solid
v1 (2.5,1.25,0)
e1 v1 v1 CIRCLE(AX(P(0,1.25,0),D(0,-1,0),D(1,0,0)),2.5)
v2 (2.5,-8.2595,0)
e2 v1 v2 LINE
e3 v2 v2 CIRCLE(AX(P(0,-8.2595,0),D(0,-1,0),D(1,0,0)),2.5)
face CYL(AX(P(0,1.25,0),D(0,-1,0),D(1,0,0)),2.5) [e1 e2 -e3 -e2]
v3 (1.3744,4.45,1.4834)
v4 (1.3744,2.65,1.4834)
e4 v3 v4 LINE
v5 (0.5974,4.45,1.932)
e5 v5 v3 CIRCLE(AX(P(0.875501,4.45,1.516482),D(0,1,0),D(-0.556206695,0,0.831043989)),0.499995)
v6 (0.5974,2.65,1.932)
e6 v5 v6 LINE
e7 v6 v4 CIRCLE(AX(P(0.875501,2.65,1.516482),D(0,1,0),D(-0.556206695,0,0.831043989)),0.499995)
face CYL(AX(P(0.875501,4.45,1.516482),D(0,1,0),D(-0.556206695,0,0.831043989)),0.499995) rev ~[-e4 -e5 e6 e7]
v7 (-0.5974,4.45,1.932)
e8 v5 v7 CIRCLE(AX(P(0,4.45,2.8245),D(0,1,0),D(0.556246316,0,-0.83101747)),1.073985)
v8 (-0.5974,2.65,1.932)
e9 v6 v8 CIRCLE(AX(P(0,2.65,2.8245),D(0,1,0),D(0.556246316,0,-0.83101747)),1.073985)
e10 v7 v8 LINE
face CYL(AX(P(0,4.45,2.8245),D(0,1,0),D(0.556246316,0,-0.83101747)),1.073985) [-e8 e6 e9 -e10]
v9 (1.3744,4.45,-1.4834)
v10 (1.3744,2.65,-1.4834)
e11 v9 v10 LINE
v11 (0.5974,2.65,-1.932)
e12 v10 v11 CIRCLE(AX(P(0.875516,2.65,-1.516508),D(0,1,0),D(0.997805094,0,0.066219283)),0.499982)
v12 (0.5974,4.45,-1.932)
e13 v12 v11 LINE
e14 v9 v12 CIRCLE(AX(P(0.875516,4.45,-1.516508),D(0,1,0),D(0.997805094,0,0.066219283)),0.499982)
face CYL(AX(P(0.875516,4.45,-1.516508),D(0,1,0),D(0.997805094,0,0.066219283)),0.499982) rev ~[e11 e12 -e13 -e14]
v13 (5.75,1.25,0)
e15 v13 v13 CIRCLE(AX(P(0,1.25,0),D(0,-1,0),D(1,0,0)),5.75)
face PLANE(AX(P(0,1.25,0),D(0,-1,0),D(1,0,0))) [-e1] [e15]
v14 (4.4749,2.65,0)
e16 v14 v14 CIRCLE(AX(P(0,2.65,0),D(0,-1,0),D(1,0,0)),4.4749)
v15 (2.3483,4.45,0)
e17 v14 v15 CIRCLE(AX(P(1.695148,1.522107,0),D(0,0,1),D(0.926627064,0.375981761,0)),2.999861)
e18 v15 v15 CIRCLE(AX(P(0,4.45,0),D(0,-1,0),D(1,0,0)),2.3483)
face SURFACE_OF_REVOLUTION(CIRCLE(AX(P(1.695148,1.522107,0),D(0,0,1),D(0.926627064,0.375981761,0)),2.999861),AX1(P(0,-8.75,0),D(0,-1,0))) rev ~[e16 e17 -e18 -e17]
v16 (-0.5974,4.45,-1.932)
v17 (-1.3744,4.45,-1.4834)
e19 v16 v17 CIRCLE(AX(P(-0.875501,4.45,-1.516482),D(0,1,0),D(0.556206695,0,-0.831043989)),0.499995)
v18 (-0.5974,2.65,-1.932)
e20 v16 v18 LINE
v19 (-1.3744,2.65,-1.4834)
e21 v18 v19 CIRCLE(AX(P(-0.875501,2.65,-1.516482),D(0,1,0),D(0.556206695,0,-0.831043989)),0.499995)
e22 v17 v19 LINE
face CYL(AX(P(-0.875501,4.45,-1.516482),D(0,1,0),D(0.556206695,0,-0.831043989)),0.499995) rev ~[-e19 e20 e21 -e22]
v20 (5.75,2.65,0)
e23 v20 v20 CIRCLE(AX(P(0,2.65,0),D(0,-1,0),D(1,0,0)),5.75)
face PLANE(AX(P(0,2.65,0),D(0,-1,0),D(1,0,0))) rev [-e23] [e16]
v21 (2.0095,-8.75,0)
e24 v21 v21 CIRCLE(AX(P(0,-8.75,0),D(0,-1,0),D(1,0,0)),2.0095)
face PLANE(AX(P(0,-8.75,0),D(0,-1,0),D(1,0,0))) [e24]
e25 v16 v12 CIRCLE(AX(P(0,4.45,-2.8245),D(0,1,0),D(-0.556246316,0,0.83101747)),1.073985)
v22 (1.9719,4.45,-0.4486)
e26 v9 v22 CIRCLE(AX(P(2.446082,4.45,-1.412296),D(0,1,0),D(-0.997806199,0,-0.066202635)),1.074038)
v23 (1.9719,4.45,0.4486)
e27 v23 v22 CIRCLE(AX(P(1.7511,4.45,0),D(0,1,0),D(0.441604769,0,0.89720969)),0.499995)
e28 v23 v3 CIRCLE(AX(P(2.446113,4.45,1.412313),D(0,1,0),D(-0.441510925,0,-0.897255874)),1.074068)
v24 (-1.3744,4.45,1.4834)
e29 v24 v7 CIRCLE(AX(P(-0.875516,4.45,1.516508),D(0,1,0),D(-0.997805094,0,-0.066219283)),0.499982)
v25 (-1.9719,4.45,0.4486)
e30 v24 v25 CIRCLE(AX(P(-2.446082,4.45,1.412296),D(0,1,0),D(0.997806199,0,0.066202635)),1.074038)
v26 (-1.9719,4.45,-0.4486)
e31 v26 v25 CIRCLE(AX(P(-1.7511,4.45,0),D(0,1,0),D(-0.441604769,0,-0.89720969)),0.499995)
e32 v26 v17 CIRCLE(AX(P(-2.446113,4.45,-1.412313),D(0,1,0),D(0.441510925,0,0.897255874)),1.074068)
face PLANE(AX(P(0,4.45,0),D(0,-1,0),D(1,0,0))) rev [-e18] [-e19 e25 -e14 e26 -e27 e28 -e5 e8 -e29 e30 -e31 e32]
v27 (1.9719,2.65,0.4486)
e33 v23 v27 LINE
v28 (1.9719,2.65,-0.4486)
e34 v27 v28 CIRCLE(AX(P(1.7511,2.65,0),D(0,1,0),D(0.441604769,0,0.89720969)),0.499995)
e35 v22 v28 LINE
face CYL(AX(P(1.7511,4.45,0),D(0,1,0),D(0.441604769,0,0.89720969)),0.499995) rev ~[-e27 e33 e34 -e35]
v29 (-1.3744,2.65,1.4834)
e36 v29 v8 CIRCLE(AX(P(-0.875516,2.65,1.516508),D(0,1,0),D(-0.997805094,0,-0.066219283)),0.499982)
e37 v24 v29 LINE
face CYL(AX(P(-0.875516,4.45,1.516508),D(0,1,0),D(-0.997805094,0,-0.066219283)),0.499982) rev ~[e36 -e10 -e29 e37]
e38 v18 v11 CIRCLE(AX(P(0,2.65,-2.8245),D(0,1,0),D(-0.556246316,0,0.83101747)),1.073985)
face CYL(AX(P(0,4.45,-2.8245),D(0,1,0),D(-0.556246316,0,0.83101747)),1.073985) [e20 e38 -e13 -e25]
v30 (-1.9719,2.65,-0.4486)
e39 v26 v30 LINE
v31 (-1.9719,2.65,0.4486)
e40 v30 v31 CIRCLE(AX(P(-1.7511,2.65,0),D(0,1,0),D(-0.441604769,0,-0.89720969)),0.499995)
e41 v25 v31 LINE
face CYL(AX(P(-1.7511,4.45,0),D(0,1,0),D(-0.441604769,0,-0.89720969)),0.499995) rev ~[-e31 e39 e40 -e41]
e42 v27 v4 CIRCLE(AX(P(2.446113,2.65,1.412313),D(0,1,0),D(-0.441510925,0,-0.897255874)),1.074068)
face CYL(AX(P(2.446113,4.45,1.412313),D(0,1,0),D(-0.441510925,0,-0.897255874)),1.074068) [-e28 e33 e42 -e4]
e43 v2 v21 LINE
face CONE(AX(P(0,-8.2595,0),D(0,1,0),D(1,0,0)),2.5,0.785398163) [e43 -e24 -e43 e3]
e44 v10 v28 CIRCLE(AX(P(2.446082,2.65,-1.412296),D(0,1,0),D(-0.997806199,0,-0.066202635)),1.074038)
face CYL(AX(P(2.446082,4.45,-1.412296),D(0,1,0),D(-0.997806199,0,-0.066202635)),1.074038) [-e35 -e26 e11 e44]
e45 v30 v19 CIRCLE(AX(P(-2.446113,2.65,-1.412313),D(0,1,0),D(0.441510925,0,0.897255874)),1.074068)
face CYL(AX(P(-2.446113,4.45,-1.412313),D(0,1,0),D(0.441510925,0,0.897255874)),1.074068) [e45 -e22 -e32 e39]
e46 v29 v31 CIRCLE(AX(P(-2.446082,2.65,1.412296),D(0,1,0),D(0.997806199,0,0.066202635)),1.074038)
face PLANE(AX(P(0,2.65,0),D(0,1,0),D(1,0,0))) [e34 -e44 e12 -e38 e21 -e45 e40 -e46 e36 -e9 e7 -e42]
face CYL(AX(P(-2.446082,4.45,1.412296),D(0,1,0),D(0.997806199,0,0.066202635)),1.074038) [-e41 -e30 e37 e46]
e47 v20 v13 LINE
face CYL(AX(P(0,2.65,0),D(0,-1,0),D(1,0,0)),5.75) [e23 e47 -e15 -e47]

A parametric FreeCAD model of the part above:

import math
import FreeCAD as App
import Part
import Sketcher
from FreeCAD import Vector
Q = App.Units.Quantity

doc = App.newDocument("Part")
params = doc.addObject("Spreadsheet::Sheet", "Params")
for row, (alias, value) in enumerate([
    ("sketch1_radius", "3 mm"),
    ("sketch1_height", "13.2 mm"),
    ("sketch1_height2", "1.4 mm"),
    ("sketch1_width", "3.25 mm"),
    ("revolution_angle", "360 deg"),
    ("sketch2_radius", "0.5 mm"),
    ("pocket1_length", "1.8 mm"),
], start=1):
    params.set(f"A{row}", alias)
    params.set(f"B{row}", "=" + value)
    params.setAlias(f"B{row}", alias)

body = doc.addObject("PartDesign::Body", "Body")

# Sketch on XY plane
sketch1 = doc.addObject("Sketcher::SketchObject", "Sketch")
body.addObject(sketch1)
sketch1.AttachmentSupport = (doc.XY_Plane, [""])
sketch1.MapMode = "FlatFace"
sketch1.addGeometry(Part.LineSegment(Vector(0, 4.45, 0), Vector(0, -8.75, 0)), False)
sketch1.addGeometry(Part.LineSegment(Vector(0, -8.75, 0), Vector(2.0095, -8.75, 0)), False)
sketch1.addGeometry(Part.LineSegment(Vector(2.0095, -8.75, 0), Vector(2.5, -8.2595, 0)), False)
sketch1.addGeometry(Part.LineSegment(Vector(2.5, -8.2595, 0), Vector(2.5, 1.25, 0)), False)
sketch1.addGeometry(Part.LineSegment(Vector(2.5, 1.25, 0), Vector(5.75, 1.25, 0)), False)
sketch1.addGeometry(Part.LineSegment(Vector(5.75, 1.25, 0), Vector(5.75, 2.65, 0)), False)
sketch1.addGeometry(Part.LineSegment(Vector(5.75, 2.65, 0), Vector(4.4749, 2.65, 0)), False)
sketch1.addGeometry(Part.ArcOfCircle(Part.Circle(Vector(1.695, 1.522, 0), Vector(0, 0, 1), 3.000038), math.radians(22.085838), math.radians(77.422097)), False)
sketch1.addGeometry(Part.LineSegment(Vector(2.3483, 4.45, 0), Vector(0, 4.45, 0)), False)
sketch1.addConstraint(Sketcher.Constraint("Coincident", 0, 2, 1, 1))
sketch1.addConstraint(Sketcher.Constraint("Coincident", 1, 2, 2, 1))
sketch1.addConstraint(Sketcher.Constraint("Coincident", 2, 2, 3, 1))
sketch1.addConstraint(Sketcher.Constraint("Coincident", 3, 2, 4, 1))
sketch1.addConstraint(Sketcher.Constraint("Coincident", 4, 2, 5, 1))
sketch1.addConstraint(Sketcher.Constraint("Coincident", 5, 2, 6, 1))
sketch1.addConstraint(Sketcher.Constraint("Coincident", 6, 2, 7, 1))
sketch1.addConstraint(Sketcher.Constraint("Coincident", 7, 2, 8, 1))
sketch1.addConstraint(Sketcher.Constraint("Coincident", 8, 2, 0, 1))
sketch1.addConstraint(Sketcher.Constraint("Vertical", 0))
sketch1.addConstraint(Sketcher.Constraint("Horizontal", 1))
sketch1.addConstraint(Sketcher.Constraint("Vertical", 3))
sketch1.addConstraint(Sketcher.Constraint("Horizontal", 4))
sketch1.addConstraint(Sketcher.Constraint("Vertical", 5))
sketch1.addConstraint(Sketcher.Constraint("Horizontal", 6))
sketch1.addConstraint(Sketcher.Constraint("Horizontal", 8))
sketch1.addConstraint(Sketcher.Constraint("PointOnObject", 0, 2, -2))
sketch1.addConstraint(Sketcher.Constraint("Radius", 7, Q("3 mm")))
sketch1.addConstraint(Sketcher.Constraint("Angle", 2, Q("45 deg")))
sketch1.addConstraint(Sketcher.Constraint("DistanceY", 0, 2, 0, 1, Q("13.2 mm")))
sketch1.addConstraint(Sketcher.Constraint("DistanceY", 5, 1, 5, 2, Q("1.4 mm")))
sketch1.addConstraint(Sketcher.Constraint("DistanceY", 1, 2, 3, 2, Q("10 mm")))
sketch1.addConstraint(Sketcher.Constraint("DistanceX", 4, 1, 4, 2, Q("3.25 mm")))
sketch1.addConstraint(Sketcher.Constraint("DistanceX", -1, 1, 2, 2, Q("2.5 mm")))
sketch1.addConstraint(Sketcher.Constraint("DistanceX", 6, 2, 6, 1, Q("1.275 mm")))
sketch1.addConstraint(Sketcher.Constraint("DistanceY", 0, 2, -1, 1, Q("8.75 mm")))
sketch1.addConstraint(Sketcher.Constraint("DistanceX", 7, 3, 6, 2, Q("2.78 mm")))
sketch1.addConstraint(Sketcher.Constraint("DistanceX", 1, 1, 1, 2, Q("2.0095 mm")))
sketch1.setExpression("Constraints[17]", "Params.sketch1_radius")
sketch1.setExpression("Constraints[19]", "Params.sketch1_height")
sketch1.setExpression("Constraints[20]", "Params.sketch1_height2")
sketch1.setExpression("Constraints[22]", "Params.sketch1_width")
revolution = doc.addObject("PartDesign::Revolution", "Revolution")
body.addObject(revolution)
revolution.Profile = sketch1
revolution.ReferenceAxis = (sketch1, ["V_Axis"])
revolution.setExpression("Angle", "Params.revolution_angle")

# Sketch on XZ plane
sketch2 = doc.addObject("Sketcher::SketchObject", "Sketch001")
body.addObject(sketch2)
sketch2.AttachmentSupport = (doc.XZ_Plane, [""])
sketch2.MapMode = "FlatFace"
sketch2.AttachmentOffset = App.Placement(Vector(0, 0, -4.45), App.Rotation())
sketch2.addGeometry(Part.ArcOfCircle(Part.Circle(Vector(-2.4461, -1.4123, 0), Vector(0, 0, 1), 1.07405), math.radians(-3.795623), math.radians(63.799961)), False)
sketch2.addGeometry(Part.ArcOfCircle(Part.Circle(Vector(-1.7511, 0, 0), Vector(0, 0, 1), 0.499995), math.radians(116.206317), math.radians(243.793683)), False)
sketch2.addGeometry(Part.ArcOfCircle(Part.Circle(Vector(-2.4461, 1.4123, 0), Vector(0, 0, 1), 1.074056), math.radians(-63.799961), math.radians(3.795623)), False)
sketch2.addGeometry(Part.ArcOfCircle(Part.Circle(Vector(-0.8755, 1.5165, 0), Vector(0, 0, 1), 0.499997), math.radians(56.205048), math.radians(183.795781)), False)
sketch2.addGeometry(Part.ArcOfCircle(Part.Circle(Vector(0, 2.8245, 0), Vector(0, 0, 1), 1.073985), math.radians(-123.796601), math.radians(-56.203399)), False)
sketch2.addGeometry(Part.ArcOfCircle(Part.Circle(Vector(0.8755, 1.5165, 0), Vector(0, 0, 1), 0.49998), math.radians(-3.795781), math.radians(123.794952)), False)
sketch2.addGeometry(Part.ArcOfCircle(Part.Circle(Vector(2.4461, 1.4123, 0), Vector(0, 0, 1), 1.07405), math.radians(176.204377), math.radians(243.799961)), False)
sketch2.addGeometry(Part.ArcOfCircle(Part.Circle(Vector(1.7511, 0, 0), Vector(0, 0, 1), 0.499995), math.radians(-63.793683), math.radians(63.793683)), False)
sketch2.addGeometry(Part.ArcOfCircle(Part.Circle(Vector(2.4461, -1.4123, 0), Vector(0, 0, 1), 1.074056), math.radians(116.200039), math.radians(183.795623)), False)
sketch2.addGeometry(Part.ArcOfCircle(Part.Circle(Vector(0.8755, -1.5165, 0), Vector(0, 0, 1), 0.499997), math.radians(-123.794952), math.radians(3.795781)), False)
sketch2.addGeometry(Part.ArcOfCircle(Part.Circle(Vector(0, -2.8245, 0), Vector(0, 0, 1), 1.073985), math.radians(56.203399), math.radians(123.796601)), False)
sketch2.addGeometry(Part.ArcOfCircle(Part.Circle(Vector(-0.8755, -1.5165, 0), Vector(0, 0, 1), 0.49998), math.radians(176.204219), math.radians(303.794952)), False)
sketch2.addConstraint(Sketcher.Constraint("Tangent", 0, 2, 1, 2))
sketch2.addConstraint(Sketcher.Constraint("Tangent", 1, 1, 2, 1))
sketch2.addConstraint(Sketcher.Constraint("Tangent", 2, 2, 3, 2))
sketch2.addConstraint(Sketcher.Constraint("Tangent", 3, 1, 4, 1))
sketch2.addConstraint(Sketcher.Constraint("Tangent", 4, 2, 5, 2))
sketch2.addConstraint(Sketcher.Constraint("Tangent", 5, 1, 6, 1))
sketch2.addConstraint(Sketcher.Constraint("Tangent", 6, 2, 7, 2))
sketch2.addConstraint(Sketcher.Constraint("Tangent", 7, 1, 8, 1))
sketch2.addConstraint(Sketcher.Constraint("Tangent", 8, 2, 9, 2))
sketch2.addConstraint(Sketcher.Constraint("Tangent", 9, 1, 10, 1))
sketch2.addConstraint(Sketcher.Constraint("Tangent", 10, 2, 11, 2))
sketch2.addConstraint(Sketcher.Constraint("Tangent", 11, 1, 0, 1))
sketch2.addConstraint(Sketcher.Constraint("Equal", 0, 2))
sketch2.addConstraint(Sketcher.Constraint("Equal", 1, 3))
sketch2.addConstraint(Sketcher.Constraint("Equal", 2, 4))
sketch2.addConstraint(Sketcher.Constraint("Equal", 3, 5))
sketch2.addConstraint(Sketcher.Constraint("Equal", 4, 6))
sketch2.addConstraint(Sketcher.Constraint("Equal", 5, 7))
sketch2.addConstraint(Sketcher.Constraint("Equal", 6, 8))
sketch2.addConstraint(Sketcher.Constraint("Equal", 7, 9))
sketch2.addConstraint(Sketcher.Constraint("Equal", 8, 10))
sketch2.addConstraint(Sketcher.Constraint("Equal", 9, 11))
sketch2.addConstraint(Sketcher.Constraint("Symmetric", 0, 3, 6, 3, -1, 1))
sketch2.addConstraint(Sketcher.Constraint("Symmetric", 2, 3, 8, 3, -1, 1))
sketch2.addConstraint(Sketcher.Constraint("Symmetric", 4, 3, 10, 3, -1, 1))
sketch2.addConstraint(Sketcher.Constraint("Symmetric", 3, 3, 5, 3, -2))
sketch2.addConstraint(Sketcher.Constraint("PointOnObject", 1, 3, -1))
sketch2.addConstraint(Sketcher.Constraint("Radius", 1, Q("0.5 mm")))
sketch2.addConstraint(Sketcher.Constraint("Radius", 0, Q("1.074 mm")))
sketch2.addConstraint(Sketcher.Constraint("DistanceX", 0, 3, -1, 1, Q("2.446 mm")))
sketch2.addConstraint(Sketcher.Constraint("DistanceX", 1, 3, -1, 1, Q("1.751 mm")))
sketch2.addConstraint(Sketcher.Constraint("DistanceY", -1, 1, 3, 1, Q("1.932 mm")))
sketch2.setExpression("Constraints[27]", "Params.sketch2_radius")
pocket1 = doc.addObject("PartDesign::Pocket", "Pocket")
body.addObject(pocket1)
pocket1.Profile = sketch2
pocket1.setExpression("Length", "Params.pocket1_length")
pocket1.Reversed = True

doc.recompute()
